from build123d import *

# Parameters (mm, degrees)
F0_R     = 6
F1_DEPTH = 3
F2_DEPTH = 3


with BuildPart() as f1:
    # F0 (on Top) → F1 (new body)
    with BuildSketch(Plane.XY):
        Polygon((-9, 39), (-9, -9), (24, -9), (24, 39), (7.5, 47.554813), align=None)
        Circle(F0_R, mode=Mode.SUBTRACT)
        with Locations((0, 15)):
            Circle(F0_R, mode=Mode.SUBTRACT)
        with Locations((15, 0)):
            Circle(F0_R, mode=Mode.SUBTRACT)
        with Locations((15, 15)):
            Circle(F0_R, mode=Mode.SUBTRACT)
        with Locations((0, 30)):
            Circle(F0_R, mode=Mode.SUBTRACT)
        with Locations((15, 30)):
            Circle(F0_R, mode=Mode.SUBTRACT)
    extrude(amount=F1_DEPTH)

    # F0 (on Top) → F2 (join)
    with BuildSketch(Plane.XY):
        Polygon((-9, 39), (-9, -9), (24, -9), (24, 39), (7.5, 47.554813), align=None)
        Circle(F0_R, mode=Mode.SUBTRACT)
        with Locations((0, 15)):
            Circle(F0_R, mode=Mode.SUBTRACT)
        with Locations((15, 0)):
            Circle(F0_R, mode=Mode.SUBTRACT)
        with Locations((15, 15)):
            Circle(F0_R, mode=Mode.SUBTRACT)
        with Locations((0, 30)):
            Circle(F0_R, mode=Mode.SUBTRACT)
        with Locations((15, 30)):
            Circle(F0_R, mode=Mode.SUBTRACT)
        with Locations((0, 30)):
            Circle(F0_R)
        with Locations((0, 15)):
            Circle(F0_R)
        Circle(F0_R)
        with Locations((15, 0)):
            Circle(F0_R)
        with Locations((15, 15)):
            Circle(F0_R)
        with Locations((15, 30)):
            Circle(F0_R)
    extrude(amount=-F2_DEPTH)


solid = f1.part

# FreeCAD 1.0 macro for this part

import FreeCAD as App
import Part
import Sketcher

V = App.Vector
Q = App.Units.Quantity


def add_polygon(sketch, points):
    """Adds a closed chain of lines whose ends are joined by coincident constraints."""
    first, n = sketch.GeometryCount, len(points)
    for a, b in zip(points, points[1:] + points[:1]):
        sketch.addGeometry(Part.LineSegment(App.Vector(*a, 0), App.Vector(*b, 0)), False)
    for i in range(n):
        sketch.addConstraint(Sketcher.Constraint("Coincident", first + i, 2, first + (i + 1) % n, 1))

doc = App.newDocument("Part")
body = doc.addObject("PartDesign::Body", "Body")

# Sketch on XY plane
sketch1 = body.newObject("Sketcher::SketchObject", "Sketch")
sketch1.AttachmentSupport = (doc.getObject("XY_Plane"), [""])
sketch1.MapMode = "FlatFace"
add_polygon(sketch1, [(-9, 39), (-9, -9), (24, -9), (24, 39), (8, 48)])  # lines 0-4
sketch1.addGeometry(Part.Circle(V(0, 0, 0), V(0, 0, 1), 6), False)  # 5
sketch1.addGeometry(Part.Circle(V(15, 0, 0), V(0, 0, 1), 6), False)  # 6
sketch1.addGeometry(Part.Circle(V(0, 15, 0), V(0, 0, 1), 6), False)  # 7
sketch1.addGeometry(Part.Circle(V(0, 30, 0), V(0, 0, 1), 6), False)  # 8
sketch1.addGeometry(Part.Circle(V(15, 15, 0), V(0, 0, 1), 6), False)  # 9
sketch1.addGeometry(Part.Circle(V(15, 30, 0), V(0, 0, 1), 6), False)  # 10
sketch1.addConstraint([
    Sketcher.Constraint("Vertical", 0),
    Sketcher.Constraint("Horizontal", 1),
    Sketcher.Constraint("Vertical", 2),
    Sketcher.Constraint("Coincident", 5, 3, -1, 1),
    Sketcher.Constraint("Equal", 5, 6),
    Sketcher.Constraint("Equal", 6, 7),
    Sketcher.Constraint("Equal", 7, 8),
    Sketcher.Constraint("Equal", 8, 9),
    Sketcher.Constraint("Equal", 9, 10),
    Sketcher.Constraint("PointOnObject", 6, 3, -1),
    Sketcher.Constraint("PointOnObject", 7, 3, -2),
    Sketcher.Constraint("PointOnObject", 8, 3, -2),
    Sketcher.Constraint("Horizontal", 7, 3, 9, 3),
    Sketcher.Constraint("Horizontal", 8, 3, 10, 3),
    Sketcher.Constraint("Horizontal", 2, 2, 4, 2),
    Sketcher.Constraint("Vertical", 6, 3, 9, 3),
    Sketcher.Constraint("Vertical", 9, 3, 10, 3),
    Sketcher.Constraint("Equal", 3, 4),
    Sketcher.Constraint("Diameter", 5, Q("12 mm")),
    Sketcher.Constraint("DistanceX", 1, 1, 1, 2, Q("33 mm")),
    Sketcher.Constraint("DistanceY", 0, 2, 0, 1, Q("48 mm")),
    Sketcher.Constraint("DistanceX", -1, 1, 6, 3, Q("15 mm")),
    Sketcher.Constraint("DistanceY", -1, 1, 7, 3, Q("15 mm")),
    Sketcher.Constraint("DistanceY", -1, 1, 8, 3, Q("30 mm")),
    Sketcher.Constraint("DistanceX", 0, 2, -1, 1, Q("9 mm")),
    Sketcher.Constraint("DistanceY", 0, 2, -1, 1, Q("9 mm")),
    Sketcher.Constraint("Distance", 3, Q("18.585877 mm")),
])
pad1 = body.newObject("PartDesign::Pad", "Pad")
pad1.Profile = sketch1
pad1.Length = 3

# Sketch on XY plane
sketch2 = body.newObject("Sketcher::SketchObject", "Sketch001")
sketch2.AttachmentSupport = (doc.getObject("XY_Plane"), [""])
sketch2.MapMode = "FlatFace"
add_polygon(sketch2, [(-9, 39), (-9, -9), (24, -9), (24, 39), (8, 48)])  # lines 0-4
sketch2.addConstraint([
    Sketcher.Constraint("Vertical", 0),
    Sketcher.Constraint("Horizontal", 1),
    Sketcher.Constraint("Vertical", 2),
    Sketcher.Constraint("Horizontal", 2, 2, 4, 2),
    Sketcher.Constraint("Equal", 3, 4),
    Sketcher.Constraint("DistanceX", 1, 1, 1, 2, Q("33 mm")),
    Sketcher.Constraint("DistanceY", 0, 2, 0, 1, Q("48 mm")),
    Sketcher.Constraint("DistanceX", 0, 2, -1, 1, Q("9 mm")),
    Sketcher.Constraint("DistanceY", 0, 2, -1, 1, Q("9 mm")),
    Sketcher.Constraint("Distance", 3, Q("18.585877 mm")),
])
pad2 = body.newObject("PartDesign::Pad", "Pad001")
pad2.Profile = sketch2
pad2.Length = 3
pad2.Reversed = True

doc.recompute()
